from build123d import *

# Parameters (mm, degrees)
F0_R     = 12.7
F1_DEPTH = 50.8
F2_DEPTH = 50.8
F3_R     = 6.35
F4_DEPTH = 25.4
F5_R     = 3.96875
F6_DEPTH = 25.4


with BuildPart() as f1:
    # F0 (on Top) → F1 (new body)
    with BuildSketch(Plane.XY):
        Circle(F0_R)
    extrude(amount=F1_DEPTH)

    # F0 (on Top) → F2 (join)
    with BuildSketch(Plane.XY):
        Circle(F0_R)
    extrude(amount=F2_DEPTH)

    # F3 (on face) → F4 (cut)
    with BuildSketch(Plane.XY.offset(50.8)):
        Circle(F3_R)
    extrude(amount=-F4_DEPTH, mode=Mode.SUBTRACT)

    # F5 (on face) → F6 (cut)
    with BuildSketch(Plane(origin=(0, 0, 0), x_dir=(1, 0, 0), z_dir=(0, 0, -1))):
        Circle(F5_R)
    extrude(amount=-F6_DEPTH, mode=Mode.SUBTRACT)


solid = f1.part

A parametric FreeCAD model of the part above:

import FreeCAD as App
import Part
import Sketcher
Q = App.Units.Quantity

doc = App.newDocument("Part")
body = doc.addObject("PartDesign::Body", "Body")

# Sketch on XY plane
sketch1 = body.newObject("Sketcher::SketchObject", "Sketch")
sketch1.AttachmentSupport = (doc.getObject("XY_Plane"), [""])
sketch1.MapMode = "FlatFace"
sketch1.addGeometry(Part.Circle(App.Vector(0, 0, 0), App.Vector(0, 0, 1), 13), False)
sketch1.addConstraint([
    Sketcher.Constraint("Coincident", 0, 3, -1, 1),
    Sketcher.Constraint("Diameter", 0, Q("1 in")),
])
pad1 = body.newObject("PartDesign::Pad", "Pad")
pad1.Profile = sketch1
pad1.Length = Q("2 in")

# Sketch on XY plane
sketch2 = body.newObject("Sketcher::SketchObject", "Sketch001")
sketch2.AttachmentSupport = (doc.getObject("XY_Plane"), [""])
sketch2.MapMode = "FlatFace"
sketch2.addGeometry(Part.Circle(App.Vector(0, 0, 0), App.Vector(0, 0, 1), 13), False)
sketch2.addConstraint([
    Sketcher.Constraint("Coincident", 0, 3, -1, 1),
    Sketcher.Constraint("Diameter", 0, Q("1 in")),
])
pad2 = body.newObject("PartDesign::Pad", "Pad001")
pad2.Profile = sketch2
pad2.Length = Q("2 in")

# Sketch on XY plane
sketch3 = body.newObject("Sketcher::SketchObject", "Sketch002")
sketch3.AttachmentSupport = (doc.getObject("XY_Plane"), [""])
sketch3.MapMode = "FlatFace"
sketch3.AttachmentOffset = App.Placement(App.Vector(0, 0, 2 * 25.4), App.Rotation())
sketch3.addGeometry(Part.Circle(App.Vector(0, 0, 0), App.Vector(0, 0, 1), 6), False)
sketch3.addConstraint([
    Sketcher.Constraint("Coincident", 0, 3, -1, 1),
    Sketcher.Constraint("Diameter", 0, Q("0.5 in")),
])
pocket1 = body.newObject("PartDesign::Pocket", "Pocket")
pocket1.Profile = sketch3
pocket1.Length = Q("1 in")

# Sketch on XY plane
sketch4 = body.newObject("Sketcher::SketchObject", "Sketch003")
sketch4.AttachmentSupport = (doc.getObject("XY_Plane"), [""])
sketch4.MapMode = "FlatFace"
sketch4.addGeometry(Part.Circle(App.Vector(0, 0, 0), App.Vector(0, 0, 1), 4), False)
sketch4.addConstraint([
    Sketcher.Constraint("Coincident", 0, 3, -1, 1),
    Sketcher.Constraint("Diameter", 0, Q("0.3125 in")),
])
pocket2 = body.newObject("PartDesign::Pocket", "Pocket001")
pocket2.Profile = sketch4
pocket2.Length = Q("1 in")
pocket2.Reversed = True

doc.recompute()
